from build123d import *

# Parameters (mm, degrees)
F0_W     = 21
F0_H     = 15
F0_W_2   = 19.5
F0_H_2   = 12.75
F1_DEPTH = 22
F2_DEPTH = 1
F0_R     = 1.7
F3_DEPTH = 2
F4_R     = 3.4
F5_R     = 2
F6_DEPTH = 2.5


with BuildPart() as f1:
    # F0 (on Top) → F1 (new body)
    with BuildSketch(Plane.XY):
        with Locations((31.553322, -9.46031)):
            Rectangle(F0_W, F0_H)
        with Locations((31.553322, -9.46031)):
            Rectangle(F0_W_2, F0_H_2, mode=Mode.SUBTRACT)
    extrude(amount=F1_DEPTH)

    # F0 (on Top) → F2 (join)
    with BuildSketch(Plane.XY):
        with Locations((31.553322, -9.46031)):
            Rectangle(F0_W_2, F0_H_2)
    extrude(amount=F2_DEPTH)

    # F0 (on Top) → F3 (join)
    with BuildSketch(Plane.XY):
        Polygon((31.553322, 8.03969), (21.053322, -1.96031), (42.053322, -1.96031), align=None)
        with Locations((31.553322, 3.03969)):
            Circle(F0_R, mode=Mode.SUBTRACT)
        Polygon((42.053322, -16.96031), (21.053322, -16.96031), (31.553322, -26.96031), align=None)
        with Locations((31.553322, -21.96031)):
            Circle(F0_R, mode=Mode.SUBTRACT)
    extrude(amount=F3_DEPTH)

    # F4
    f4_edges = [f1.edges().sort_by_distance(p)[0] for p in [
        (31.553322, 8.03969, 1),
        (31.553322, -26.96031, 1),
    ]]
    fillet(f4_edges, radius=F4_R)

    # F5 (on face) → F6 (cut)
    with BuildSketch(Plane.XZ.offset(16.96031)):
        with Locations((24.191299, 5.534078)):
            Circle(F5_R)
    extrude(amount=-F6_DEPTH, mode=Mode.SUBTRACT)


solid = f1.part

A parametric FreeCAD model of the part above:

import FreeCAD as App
import Part
import Sketcher
Q = App.Units.Quantity


def edges_at(feature, points):
    """Names of the edges that pass closest to the given points."""
    edges = feature.Shape.Edges
    near = lambda p: min(range(len(edges)), key=lambda i: edges[i].distToShape(Part.Vertex(*p))[0])
    return sorted({f"Edge{near(p) + 1}" for p in points})


def add_polygon(sketch, points):
    """Adds a closed chain of lines whose ends are joined by coincident constraints."""
    first, n = sketch.GeometryCount, len(points)
    for a, b in zip(points, points[1:] + points[:1]):
        sketch.addGeometry(Part.LineSegment(App.Vector(*a, 0), App.Vector(*b, 0)), False)
    for i in range(n):
        sketch.addConstraint(Sketcher.Constraint("Coincident", first + i, 2, first + (i + 1) % n, 1))

doc = App.newDocument("Part")
params = doc.addObject("Spreadsheet::Sheet", "Params")
for row, (alias, value) in enumerate([
    ("sketch1_width", "21 mm"),
    ("sketch1_height", "15 mm"),
    ("sketch1_width2", "19.5 mm"),
    ("sketch1_height2", "12.75 mm"),
    ("pad1_length", "22 mm"),
    ("sketch2_width", "19.5 mm"),
    ("sketch2_height", "12.75 mm"),
    ("pad2_length", "1 mm"),
    ("sketch3_diameter", "3.4 mm"),
    ("sketch3_width", "21 mm"),
    ("pad3_length", "2 mm"),
    ("fillet_radius", "3.4 mm"),
    ("sketch4_diameter", "4 mm"),
    ("pocket1_length", "2.5 mm"),
], start=1):
    params.set(f"A{row}", alias)
    params.set(f"B{row}", "=" + value)
    params.setAlias(f"B{row}", alias)

body = doc.addObject("PartDesign::Body", "Body")

sketch1 = body.newObject("Sketcher::SketchObject", "Sketch")
sketch1.AttachmentSupport = (doc.getObject("XY_Plane"), [""])
sketch1.MapMode = "FlatFace"
add_polygon(sketch1, [(21, -2), (21, -17), (42, -17), (42, -2)])
add_polygon(sketch1, [(41, -16), (22, -16), (22, -3), (41, -3)])
sketch1.addConstraint(Sketcher.Constraint("Vertical", 0))
sketch1.addConstraint(Sketcher.Constraint("Horizontal", 1))
sketch1.addConstraint(Sketcher.Constraint("Vertical", 2))
sketch1.addConstraint(Sketcher.Constraint("Horizontal", 3))
sketch1.addConstraint(Sketcher.Constraint("Horizontal", 4))
sketch1.addConstraint(Sketcher.Constraint("Vertical", 5))
sketch1.addConstraint(Sketcher.Constraint("Horizontal", 6))
sketch1.addConstraint(Sketcher.Constraint("Vertical", 7))
sketch1.addConstraint(Sketcher.Constraint("DistanceX", 1, 1, 1, 2, Q("21 mm")))
sketch1.addConstraint(Sketcher.Constraint("DistanceY", 0, 2, 0, 1, Q("15 mm")))
sketch1.addConstraint(Sketcher.Constraint("DistanceX", 4, 2, 4, 1, Q("19.5 mm")))
sketch1.addConstraint(Sketcher.Constraint("DistanceY", 5, 1, 5, 2, Q("12.75 mm")))
sketch1.addConstraint(Sketcher.Constraint("DistanceX", 0, 2, 4, 2, Q("0.75 mm")))
sketch1.addConstraint(Sketcher.Constraint("DistanceY", 0, 2, 4, 2, Q("1.125 mm")))
sketch1.addConstraint(Sketcher.Constraint("DistanceY", 0, 2, -1, 1, Q("16.96031 mm")))
sketch1.addConstraint(Sketcher.Constraint("DistanceX", -1, 1, 0, 2, Q("21.053322 mm")))
sketch1.setExpression("Constraints[16]", "Params.sketch1_width")
sketch1.setExpression("Constraints[17]", "Params.sketch1_height")
sketch1.setExpression("Constraints[18]", "Params.sketch1_width2")
sketch1.setExpression("Constraints[19]", "Params.sketch1_height2")
pad1 = body.newObject("PartDesign::Pad", "Pad")
pad1.Profile = sketch1
pad1.setExpression("Length", "Params.pad1_length")

sketch2 = body.newObject("Sketcher::SketchObject", "Sketch001")
sketch2.AttachmentSupport = (doc.getObject("XY_Plane"), [""])
sketch2.MapMode = "FlatFace"
add_polygon(sketch2, [(22, -3), (22, -16), (41, -16), (41, -3)])
sketch2.addConstraint(Sketcher.Constraint("Vertical", 0))
sketch2.addConstraint(Sketcher.Constraint("Horizontal", 1))
sketch2.addConstraint(Sketcher.Constraint("Vertical", 2))
sketch2.addConstraint(Sketcher.Constraint("Horizontal", 3))
sketch2.addConstraint(Sketcher.Constraint("DistanceX", 1, 1, 1, 2, Q("19.5 mm")))
sketch2.addConstraint(Sketcher.Constraint("DistanceY", 0, 2, 0, 1, Q("12.75 mm")))
sketch2.addConstraint(Sketcher.Constraint("DistanceY", 0, 2, -1, 1, Q("15.83531 mm")))
sketch2.addConstraint(Sketcher.Constraint("DistanceX", -1, 1, 0, 2, Q("21.803322 mm")))
sketch2.setExpression("Constraints[8]", "Params.sketch2_width")
sketch2.setExpression("Constraints[9]", "Params.sketch2_height")
pad2 = body.newObject("PartDesign::Pad", "Pad001")
pad2.Profile = sketch2
pad2.setExpression("Length", "Params.pad2_length")

sketch3 = body.newObject("Sketcher::SketchObject", "Sketch002")
sketch3.AttachmentSupport = (doc.getObject("XY_Plane"), [""])
sketch3.MapMode = "FlatFace"
add_polygon(sketch3, [(31.6, 8), (21.1, -2), (42.1, -2)])
sketch3.addGeometry(Part.Circle(App.Vector(31.6, 3, 0), App.Vector(0, 0, 1), 1.7), False)
add_polygon(sketch3, [(42.1, -17), (21.1, -17), (31.6, -27)])
sketch3.addGeometry(Part.Circle(App.Vector(31.6, -22, 0), App.Vector(0, 0, 1), 1.7), False)
sketch3.addConstraint(Sketcher.Constraint("Horizontal", 1))
sketch3.addConstraint(Sketcher.Constraint("Horizontal", 4))
sketch3.addConstraint(Sketcher.Constraint("Equal", 3, 7))
sketch3.addConstraint(Sketcher.Constraint("Parallel", 2, 5))
sketch3.addConstraint(Sketcher.Constraint("Parallel", 0, 6))
sketch3.addConstraint(Sketcher.Constraint("Vertical", 3, 3, 7, 3))
sketch3.addConstraint(Sketcher.Constraint("Vertical", 7, 3, 2, 2))
sketch3.addConstraint(Sketcher.Constraint("Vertical", 0, 2, 4, 2))
sketch3.addConstraint(Sketcher.Constraint("Vertical", 2, 2, 5, 2))
sketch3.addConstraint(Sketcher.Constraint("Vertical", 1, 2, 6, 2))
sketch3.addConstraint(Sketcher.Constraint("Diameter", 3, Q("3.4 mm")))
sketch3.addConstraint(Sketcher.Constraint("DistanceX", 1, 1, 1, 2, Q("21 mm")))
sketch3.addConstraint(Sketcher.Constraint("DistanceY", 7, 3, 3, 3, Q("25 mm")))
sketch3.addConstraint(Sketcher.Constraint("DistanceY", 0, 2, 3, 3, Q("5 mm")))
sketch3.addConstraint(Sketcher.Constraint("DistanceY", 3, 3, 2, 2, Q("5 mm")))
sketch3.addConstraint(Sketcher.Constraint("DistanceY", 7, 3, 4, 2, Q("5 mm")))
sketch3.addConstraint(Sketcher.Constraint("DistanceY", -1, 1, 3, 3, Q("3.03969 mm")))
sketch3.addConstraint(Sketcher.Constraint("DistanceX", -1, 1, 3, 3, Q("31.553322 mm")))
sketch3.setExpression("Constraints[16]", "Params.sketch3_diameter")
sketch3.setExpression("Constraints[17]", "Params.sketch3_width")
pad3 = body.newObject("PartDesign::Pad", "Pad002")
pad3.Profile = sketch3
pad3.setExpression("Length", "Params.pad3_length")
doc.recompute()

fillet = body.newObject("PartDesign::Fillet", "Fillet")
fillet.Base = (pad3, edges_at(pad3, [(31.553, 8.04, 1), (31.553, -26.96, 1)]))
fillet.setExpression("Radius", "Params.fillet_radius")

sketch4 = body.newObject("Sketcher::SketchObject", "Sketch003")
sketch4.AttachmentSupport = (doc.getObject("XZ_Plane"), [""])
sketch4.MapMode = "FlatFace"
sketch4.AttachmentOffset = App.Placement(App.Vector(0, 0, 16.96031), App.Rotation())
sketch4.addGeometry(Part.Circle(App.Vector(24.2, 5.5, 0), App.Vector(0, 0, 1), 2), False)
sketch4.addConstraint(Sketcher.Constraint("Diameter", 0, Q("4 mm")))
sketch4.addConstraint(Sketcher.Constraint("DistanceX", -1, 1, 0, 3, Q("24.191299 mm")))
sketch4.addConstraint(Sketcher.Constraint("DistanceY", -1, 1, 0, 3, Q("5.534078 mm")))
sketch4.setExpression("Constraints[0]", "Params.sketch4_diameter")
pocket1 = body.newObject("PartDesign::Pocket", "Pocket")
pocket1.Profile = sketch4
pocket1.setExpression("Length", "Params.pocket1_length")

doc.recompute()
